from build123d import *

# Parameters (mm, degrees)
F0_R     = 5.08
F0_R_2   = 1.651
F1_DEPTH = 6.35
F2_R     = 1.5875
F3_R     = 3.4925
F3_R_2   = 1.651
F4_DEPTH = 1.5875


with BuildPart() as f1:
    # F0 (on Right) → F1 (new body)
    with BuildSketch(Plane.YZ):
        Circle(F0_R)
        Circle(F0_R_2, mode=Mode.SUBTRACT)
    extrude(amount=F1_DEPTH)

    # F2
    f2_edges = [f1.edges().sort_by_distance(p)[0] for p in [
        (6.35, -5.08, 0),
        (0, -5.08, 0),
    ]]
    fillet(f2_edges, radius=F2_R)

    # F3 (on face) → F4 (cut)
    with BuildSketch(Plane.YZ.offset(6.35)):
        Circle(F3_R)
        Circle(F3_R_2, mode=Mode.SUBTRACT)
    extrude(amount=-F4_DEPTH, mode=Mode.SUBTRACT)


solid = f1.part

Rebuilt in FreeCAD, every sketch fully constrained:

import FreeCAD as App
import Part
import Sketcher
from FreeCAD import Vector
Q = App.Units.Quantity


def edges_at(feature, points):
    """Names of the edges that pass closest to the given points."""
    edges = feature.Shape.Edges
    near = lambda p: min(range(len(edges)), key=lambda i: edges[i].distToShape(Part.Vertex(*p))[0])
    return sorted({f"Edge{near(p) + 1}" for p in points})

doc = App.newDocument("Part")
body = doc.addObject("PartDesign::Body", "Body")

# Sketch on YZ plane
sketch1 = body.newObject("Sketcher::SketchObject", "Sketch")
sketch1.AttachmentSupport = (doc.getObject("YZ_Plane"), [""])
sketch1.MapMode = "FlatFace"
sketch1.addGeometry([
    Part.Circle(Vector(0, 0, 0), Vector(0, 0, 1), 5.08),
    Part.Circle(Vector(0, 0, 0), Vector(0, 0, 1), 1.651),
], False)
sketch1.addConstraint([
    Sketcher.Constraint("Coincident", 0, 3, -1, 1),
    Sketcher.Constraint("Coincident", 1, 3, -1, 1),
    Sketcher.Constraint("Diameter", 0, Q("0.4 in")),
    Sketcher.Constraint("Diameter", 1, Q("0.13 in")),
])
pad1 = body.newObject("PartDesign::Pad", "Pad")
pad1.Profile = sketch1
pad1.Length = Q("0.25 in")
doc.recompute()

fillet = body.newObject("PartDesign::Fillet", "Fillet")
fillet.Base = (pad1, edges_at(pad1, [(6.35, -5.08, 0), (0, -5.08, 0)]))
fillet.Radius = Q("0.0625 in")

# Sketch on YZ plane
sketch2 = body.newObject("Sketcher::SketchObject", "Sketch001")
sketch2.AttachmentSupport = (doc.getObject("YZ_Plane"), [""])
sketch2.MapMode = "FlatFace"
sketch2.AttachmentOffset = App.Placement(Vector(0, 0, 0.25 * 25.4), App.Rotation())
sketch2.addGeometry([
    Part.Circle(Vector(0, 0, 0), Vector(0, 0, 1), 3.4925),
    Part.Circle(Vector(0, 0, 0), Vector(0, 0, 1), 1.651),
], False)
sketch2.addConstraint([
    Sketcher.Constraint("Coincident", 0, 3, -1, 1),
    Sketcher.Constraint("Coincident", 1, 3, -1, 1),
    Sketcher.Constraint("Diameter", 1, Q("0.13 in")),
    Sketcher.Constraint("Diameter", 0, Q("0.275 in")),
])
pocket1 = body.newObject("PartDesign::Pocket", "Pocket")
pocket1.Profile = sketch2
pocket1.Length = Q("0.0625 in")

doc.recompute()
